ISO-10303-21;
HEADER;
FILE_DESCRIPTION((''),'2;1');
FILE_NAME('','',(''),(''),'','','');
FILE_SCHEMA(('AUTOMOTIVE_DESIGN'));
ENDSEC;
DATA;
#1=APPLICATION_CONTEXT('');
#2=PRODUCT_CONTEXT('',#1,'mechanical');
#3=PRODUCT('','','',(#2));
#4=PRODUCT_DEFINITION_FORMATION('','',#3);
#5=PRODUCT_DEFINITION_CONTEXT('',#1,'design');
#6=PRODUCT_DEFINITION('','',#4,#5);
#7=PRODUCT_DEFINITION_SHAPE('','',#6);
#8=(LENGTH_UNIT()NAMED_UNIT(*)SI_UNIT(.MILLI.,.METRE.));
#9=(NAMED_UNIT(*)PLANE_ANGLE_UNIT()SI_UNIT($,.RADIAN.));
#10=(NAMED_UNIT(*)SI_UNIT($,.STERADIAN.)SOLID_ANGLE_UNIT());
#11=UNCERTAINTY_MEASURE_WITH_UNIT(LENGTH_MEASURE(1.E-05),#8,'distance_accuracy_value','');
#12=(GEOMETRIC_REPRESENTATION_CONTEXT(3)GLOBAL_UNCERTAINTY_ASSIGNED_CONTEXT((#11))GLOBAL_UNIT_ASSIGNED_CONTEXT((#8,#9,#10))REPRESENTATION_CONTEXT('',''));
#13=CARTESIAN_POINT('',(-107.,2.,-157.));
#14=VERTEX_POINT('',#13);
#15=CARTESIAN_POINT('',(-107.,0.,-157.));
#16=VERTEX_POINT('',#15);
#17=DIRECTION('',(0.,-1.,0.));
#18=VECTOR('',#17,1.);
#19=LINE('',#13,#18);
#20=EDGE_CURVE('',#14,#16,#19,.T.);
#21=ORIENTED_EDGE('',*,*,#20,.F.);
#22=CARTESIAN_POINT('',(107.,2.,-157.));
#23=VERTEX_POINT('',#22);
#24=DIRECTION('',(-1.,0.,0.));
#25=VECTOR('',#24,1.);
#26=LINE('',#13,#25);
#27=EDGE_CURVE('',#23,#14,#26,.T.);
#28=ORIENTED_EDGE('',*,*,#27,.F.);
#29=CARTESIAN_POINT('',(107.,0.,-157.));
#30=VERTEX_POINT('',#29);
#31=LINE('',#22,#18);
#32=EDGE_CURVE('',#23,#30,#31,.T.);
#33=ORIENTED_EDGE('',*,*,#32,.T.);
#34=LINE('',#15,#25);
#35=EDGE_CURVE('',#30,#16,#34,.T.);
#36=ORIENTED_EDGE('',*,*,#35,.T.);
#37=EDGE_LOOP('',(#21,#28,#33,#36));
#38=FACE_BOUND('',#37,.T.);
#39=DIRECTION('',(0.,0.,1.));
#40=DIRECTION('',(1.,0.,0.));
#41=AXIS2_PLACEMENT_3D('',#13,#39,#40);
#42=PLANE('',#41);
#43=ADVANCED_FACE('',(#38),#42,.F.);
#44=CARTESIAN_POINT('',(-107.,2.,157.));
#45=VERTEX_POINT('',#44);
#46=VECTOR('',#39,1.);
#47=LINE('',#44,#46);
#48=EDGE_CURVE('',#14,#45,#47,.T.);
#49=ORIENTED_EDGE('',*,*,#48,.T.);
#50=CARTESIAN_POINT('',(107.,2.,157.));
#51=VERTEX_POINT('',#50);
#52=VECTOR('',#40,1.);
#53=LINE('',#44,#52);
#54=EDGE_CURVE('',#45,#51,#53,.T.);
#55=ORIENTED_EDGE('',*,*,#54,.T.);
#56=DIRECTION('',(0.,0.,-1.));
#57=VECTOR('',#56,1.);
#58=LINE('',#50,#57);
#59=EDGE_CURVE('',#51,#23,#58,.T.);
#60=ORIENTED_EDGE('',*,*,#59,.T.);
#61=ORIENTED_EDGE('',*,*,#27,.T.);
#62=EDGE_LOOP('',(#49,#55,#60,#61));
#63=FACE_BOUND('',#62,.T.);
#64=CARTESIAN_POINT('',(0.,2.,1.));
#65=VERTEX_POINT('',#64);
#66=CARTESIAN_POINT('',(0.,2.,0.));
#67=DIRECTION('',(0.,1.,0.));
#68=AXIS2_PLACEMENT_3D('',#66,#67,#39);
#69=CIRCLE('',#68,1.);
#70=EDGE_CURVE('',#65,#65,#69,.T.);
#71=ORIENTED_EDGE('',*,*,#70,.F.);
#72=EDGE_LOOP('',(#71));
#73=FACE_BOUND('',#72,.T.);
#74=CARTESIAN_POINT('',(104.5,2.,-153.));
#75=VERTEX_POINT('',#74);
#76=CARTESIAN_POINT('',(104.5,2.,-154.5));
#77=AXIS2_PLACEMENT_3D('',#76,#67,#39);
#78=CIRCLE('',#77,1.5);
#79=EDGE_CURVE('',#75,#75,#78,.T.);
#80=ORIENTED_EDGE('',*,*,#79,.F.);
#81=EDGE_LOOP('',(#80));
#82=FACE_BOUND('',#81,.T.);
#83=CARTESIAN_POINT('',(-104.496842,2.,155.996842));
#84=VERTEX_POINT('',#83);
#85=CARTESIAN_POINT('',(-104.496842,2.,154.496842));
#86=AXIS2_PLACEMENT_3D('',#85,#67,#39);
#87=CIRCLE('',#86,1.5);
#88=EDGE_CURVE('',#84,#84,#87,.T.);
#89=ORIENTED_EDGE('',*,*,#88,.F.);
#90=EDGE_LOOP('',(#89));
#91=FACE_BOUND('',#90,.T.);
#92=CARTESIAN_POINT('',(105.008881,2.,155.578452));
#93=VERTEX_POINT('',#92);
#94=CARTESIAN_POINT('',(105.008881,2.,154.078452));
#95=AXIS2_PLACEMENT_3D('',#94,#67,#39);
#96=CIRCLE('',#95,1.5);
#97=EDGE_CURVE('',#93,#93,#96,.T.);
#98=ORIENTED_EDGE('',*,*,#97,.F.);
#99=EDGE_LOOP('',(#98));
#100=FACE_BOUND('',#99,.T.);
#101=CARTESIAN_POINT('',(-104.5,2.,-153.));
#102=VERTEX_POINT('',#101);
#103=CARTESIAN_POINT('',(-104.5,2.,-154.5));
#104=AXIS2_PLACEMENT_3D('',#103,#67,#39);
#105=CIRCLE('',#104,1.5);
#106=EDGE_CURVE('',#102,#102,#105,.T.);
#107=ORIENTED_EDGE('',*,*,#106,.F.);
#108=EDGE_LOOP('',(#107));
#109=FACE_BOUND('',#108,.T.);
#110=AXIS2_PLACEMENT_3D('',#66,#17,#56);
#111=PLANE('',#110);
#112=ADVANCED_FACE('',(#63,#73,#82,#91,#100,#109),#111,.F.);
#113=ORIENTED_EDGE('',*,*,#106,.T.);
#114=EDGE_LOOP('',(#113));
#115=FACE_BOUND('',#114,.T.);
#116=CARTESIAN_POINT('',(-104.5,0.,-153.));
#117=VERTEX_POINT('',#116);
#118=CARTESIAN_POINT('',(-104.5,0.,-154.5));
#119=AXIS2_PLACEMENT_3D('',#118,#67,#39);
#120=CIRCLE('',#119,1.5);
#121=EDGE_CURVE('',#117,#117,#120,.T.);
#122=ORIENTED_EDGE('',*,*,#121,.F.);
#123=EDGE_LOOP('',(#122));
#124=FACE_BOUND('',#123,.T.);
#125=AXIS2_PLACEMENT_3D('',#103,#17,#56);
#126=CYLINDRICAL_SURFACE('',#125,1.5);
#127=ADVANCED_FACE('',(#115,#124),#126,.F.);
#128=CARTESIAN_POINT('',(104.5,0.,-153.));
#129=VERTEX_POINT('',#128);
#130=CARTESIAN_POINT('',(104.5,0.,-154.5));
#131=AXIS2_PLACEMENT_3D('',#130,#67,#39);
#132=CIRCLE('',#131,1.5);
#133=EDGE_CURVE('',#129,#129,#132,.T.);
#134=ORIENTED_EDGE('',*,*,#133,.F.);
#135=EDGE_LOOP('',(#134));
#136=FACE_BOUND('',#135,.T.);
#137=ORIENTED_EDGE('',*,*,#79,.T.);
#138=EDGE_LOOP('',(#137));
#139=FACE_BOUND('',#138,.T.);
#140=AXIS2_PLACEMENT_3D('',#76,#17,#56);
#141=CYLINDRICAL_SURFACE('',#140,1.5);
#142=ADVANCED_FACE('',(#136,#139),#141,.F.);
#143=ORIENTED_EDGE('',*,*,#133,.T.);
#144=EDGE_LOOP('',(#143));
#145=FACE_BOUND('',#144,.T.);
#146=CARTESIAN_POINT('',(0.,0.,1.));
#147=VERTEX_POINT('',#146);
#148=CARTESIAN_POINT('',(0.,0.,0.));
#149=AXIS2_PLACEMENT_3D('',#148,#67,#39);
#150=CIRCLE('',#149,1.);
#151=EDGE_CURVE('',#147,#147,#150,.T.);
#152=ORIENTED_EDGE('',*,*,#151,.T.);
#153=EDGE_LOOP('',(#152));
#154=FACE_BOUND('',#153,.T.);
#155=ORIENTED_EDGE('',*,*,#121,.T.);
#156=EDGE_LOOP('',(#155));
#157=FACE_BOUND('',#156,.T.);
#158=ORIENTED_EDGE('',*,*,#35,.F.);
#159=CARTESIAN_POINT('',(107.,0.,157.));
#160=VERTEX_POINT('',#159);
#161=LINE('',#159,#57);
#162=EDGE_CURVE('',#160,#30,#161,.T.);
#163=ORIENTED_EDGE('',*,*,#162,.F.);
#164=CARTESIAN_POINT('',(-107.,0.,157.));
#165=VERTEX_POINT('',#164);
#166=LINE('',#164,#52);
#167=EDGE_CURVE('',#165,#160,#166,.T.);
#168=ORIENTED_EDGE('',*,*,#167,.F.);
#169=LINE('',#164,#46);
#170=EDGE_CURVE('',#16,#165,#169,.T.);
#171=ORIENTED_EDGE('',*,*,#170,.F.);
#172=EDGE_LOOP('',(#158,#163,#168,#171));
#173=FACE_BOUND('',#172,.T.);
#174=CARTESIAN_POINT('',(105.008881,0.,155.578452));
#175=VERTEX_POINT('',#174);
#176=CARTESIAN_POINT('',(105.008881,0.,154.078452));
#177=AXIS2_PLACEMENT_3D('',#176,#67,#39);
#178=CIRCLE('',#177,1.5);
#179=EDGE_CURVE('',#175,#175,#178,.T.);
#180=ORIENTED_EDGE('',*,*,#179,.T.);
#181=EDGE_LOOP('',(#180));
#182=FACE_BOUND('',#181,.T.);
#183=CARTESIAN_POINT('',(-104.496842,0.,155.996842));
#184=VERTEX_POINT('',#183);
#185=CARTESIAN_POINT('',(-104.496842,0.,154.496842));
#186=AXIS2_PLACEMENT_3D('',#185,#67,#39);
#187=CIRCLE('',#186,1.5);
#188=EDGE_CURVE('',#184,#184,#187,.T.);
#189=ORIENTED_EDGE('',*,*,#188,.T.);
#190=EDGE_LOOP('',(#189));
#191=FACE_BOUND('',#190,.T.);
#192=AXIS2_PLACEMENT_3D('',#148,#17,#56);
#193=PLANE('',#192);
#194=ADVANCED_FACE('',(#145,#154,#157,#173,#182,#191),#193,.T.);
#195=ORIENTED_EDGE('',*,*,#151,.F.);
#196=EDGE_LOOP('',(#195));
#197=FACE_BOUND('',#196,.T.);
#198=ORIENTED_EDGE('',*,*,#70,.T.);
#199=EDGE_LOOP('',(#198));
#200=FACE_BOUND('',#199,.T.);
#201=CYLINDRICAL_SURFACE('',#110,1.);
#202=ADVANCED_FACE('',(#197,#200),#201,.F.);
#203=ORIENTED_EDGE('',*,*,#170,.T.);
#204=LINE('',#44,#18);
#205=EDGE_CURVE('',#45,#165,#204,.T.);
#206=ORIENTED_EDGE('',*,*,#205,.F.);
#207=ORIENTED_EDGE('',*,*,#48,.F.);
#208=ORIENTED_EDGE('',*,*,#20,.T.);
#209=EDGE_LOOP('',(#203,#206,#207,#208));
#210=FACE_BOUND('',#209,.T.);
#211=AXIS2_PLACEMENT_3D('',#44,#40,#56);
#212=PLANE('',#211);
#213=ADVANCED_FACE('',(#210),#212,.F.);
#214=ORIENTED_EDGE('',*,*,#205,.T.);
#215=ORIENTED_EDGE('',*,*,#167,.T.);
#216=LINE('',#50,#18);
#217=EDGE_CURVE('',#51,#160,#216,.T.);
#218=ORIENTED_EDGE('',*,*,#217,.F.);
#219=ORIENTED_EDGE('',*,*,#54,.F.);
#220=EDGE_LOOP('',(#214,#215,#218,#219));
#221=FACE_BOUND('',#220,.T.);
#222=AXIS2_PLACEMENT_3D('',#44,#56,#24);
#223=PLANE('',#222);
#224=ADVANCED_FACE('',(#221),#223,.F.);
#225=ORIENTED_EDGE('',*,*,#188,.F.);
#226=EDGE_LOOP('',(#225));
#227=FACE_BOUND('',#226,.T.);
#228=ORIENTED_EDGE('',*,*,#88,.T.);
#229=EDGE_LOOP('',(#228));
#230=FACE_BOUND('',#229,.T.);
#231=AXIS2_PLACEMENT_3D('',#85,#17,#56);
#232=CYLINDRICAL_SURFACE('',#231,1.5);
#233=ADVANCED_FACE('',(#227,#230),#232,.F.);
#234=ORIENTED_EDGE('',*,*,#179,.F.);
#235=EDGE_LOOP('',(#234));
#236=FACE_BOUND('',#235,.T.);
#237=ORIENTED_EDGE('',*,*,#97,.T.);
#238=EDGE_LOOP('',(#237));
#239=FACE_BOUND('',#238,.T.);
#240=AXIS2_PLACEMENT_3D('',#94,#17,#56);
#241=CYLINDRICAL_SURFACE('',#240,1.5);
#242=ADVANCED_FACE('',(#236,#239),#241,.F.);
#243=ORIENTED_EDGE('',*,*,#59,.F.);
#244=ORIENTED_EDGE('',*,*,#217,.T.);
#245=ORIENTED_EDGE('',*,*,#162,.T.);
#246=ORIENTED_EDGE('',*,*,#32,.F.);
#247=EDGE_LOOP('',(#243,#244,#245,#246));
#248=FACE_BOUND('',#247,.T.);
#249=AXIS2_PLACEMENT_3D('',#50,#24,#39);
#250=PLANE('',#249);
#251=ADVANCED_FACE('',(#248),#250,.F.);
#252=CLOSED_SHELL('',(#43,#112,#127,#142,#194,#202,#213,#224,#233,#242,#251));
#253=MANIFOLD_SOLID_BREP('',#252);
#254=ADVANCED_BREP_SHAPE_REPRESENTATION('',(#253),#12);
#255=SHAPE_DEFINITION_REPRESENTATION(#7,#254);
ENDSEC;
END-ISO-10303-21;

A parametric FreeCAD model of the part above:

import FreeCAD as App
import Part
import Sketcher

V = App.Vector


def add_polygon(sketch, points):
    """Adds a closed chain of lines whose ends are joined by coincident constraints."""
    first, n = sketch.GeometryCount, len(points)
    for a, b in zip(points, points[1:] + points[:1]):
        sketch.addGeometry(Part.LineSegment(App.Vector(*a, 0), App.Vector(*b, 0)), False)
    for i in range(n):
        sketch.addConstraint(Sketcher.Constraint("Coincident", first + i, 2, first + (i + 1) % n, 1))

doc = App.newDocument("Part")
body = doc.addObject("PartDesign::Body", "Body")

sketch1 = body.newObject("Sketcher::SketchObject", "Sketch")
sketch1.AttachmentSupport = (doc.getObject("XZ_Plane"), [""])
sketch1.MapMode = "FlatFace"
add_polygon(sketch1, [(-107, -157), (-107, 157), (107, 157), (107, -157)])
sketch1.addGeometry(Part.Circle(V(-104.5, 154.5, 0), V(0, 0, 1), 1.5), False)
sketch1.addGeometry(Part.Circle(V(0, 0, 0), V(0, 0, 1), 1), False)
sketch1.addGeometry(Part.Circle(V(105, 154.1, 0), V(0, 0, 1), 1.5), False)
sketch1.addGeometry(Part.Circle(V(-104.5, -154.5, 0), V(0, 0, 1), 1.5), False)
sketch1.addGeometry(Part.Circle(V(104.5, -154.5, 0), V(0, 0, 1), 1.5), False)
sketch1.addConstraint([
    Sketcher.Constraint("Vertical", 0),
    Sketcher.Constraint("Horizontal", 1),
    Sketcher.Constraint("Vertical", 2),
    Sketcher.Constraint("Horizontal", 3),
    Sketcher.Constraint("Coincident", 5, 3, -1, 1),
    Sketcher.Constraint("Equal", 4, 6),
    Sketcher.Constraint("Equal", 6, 7),
    Sketcher.Constraint("Equal", 7, 8),
    Sketcher.Constraint("Symmetric", 0, 2, 2, 2, -1, 1),
    Sketcher.Constraint("Symmetric", 7, 3, 8, 3, -2),
    Sketcher.Constraint("Diameter", 4, 3.0),
    Sketcher.Constraint("Diameter", 5, 2.0),
    Sketcher.Constraint("DistanceX", 1, 1, 1, 2, 214.0),
    Sketcher.Constraint("DistanceY", 0, 1, 0, 2, 314.0),
    Sketcher.Constraint("DistanceX", 7, 3, 8, 3, 209.0),
    Sketcher.Constraint("DistanceY", 7, 3, -1, 1, 154.5),
    Sketcher.Constraint("DistanceX", 4, 3, -1, 1, 104.496842),
    Sketcher.Constraint("DistanceY", -1, 1, 4, 3, 154.496842),
    Sketcher.Constraint("DistanceX", -1, 1, 6, 3, 105.008881),
    Sketcher.Constraint("DistanceY", -1, 1, 6, 3, 154.078452),
])
pad1 = body.newObject("PartDesign::Pad", "Pad")
pad1.Profile = sketch1
pad1.Length = 2
pad1.Reversed = True

doc.recompute()
